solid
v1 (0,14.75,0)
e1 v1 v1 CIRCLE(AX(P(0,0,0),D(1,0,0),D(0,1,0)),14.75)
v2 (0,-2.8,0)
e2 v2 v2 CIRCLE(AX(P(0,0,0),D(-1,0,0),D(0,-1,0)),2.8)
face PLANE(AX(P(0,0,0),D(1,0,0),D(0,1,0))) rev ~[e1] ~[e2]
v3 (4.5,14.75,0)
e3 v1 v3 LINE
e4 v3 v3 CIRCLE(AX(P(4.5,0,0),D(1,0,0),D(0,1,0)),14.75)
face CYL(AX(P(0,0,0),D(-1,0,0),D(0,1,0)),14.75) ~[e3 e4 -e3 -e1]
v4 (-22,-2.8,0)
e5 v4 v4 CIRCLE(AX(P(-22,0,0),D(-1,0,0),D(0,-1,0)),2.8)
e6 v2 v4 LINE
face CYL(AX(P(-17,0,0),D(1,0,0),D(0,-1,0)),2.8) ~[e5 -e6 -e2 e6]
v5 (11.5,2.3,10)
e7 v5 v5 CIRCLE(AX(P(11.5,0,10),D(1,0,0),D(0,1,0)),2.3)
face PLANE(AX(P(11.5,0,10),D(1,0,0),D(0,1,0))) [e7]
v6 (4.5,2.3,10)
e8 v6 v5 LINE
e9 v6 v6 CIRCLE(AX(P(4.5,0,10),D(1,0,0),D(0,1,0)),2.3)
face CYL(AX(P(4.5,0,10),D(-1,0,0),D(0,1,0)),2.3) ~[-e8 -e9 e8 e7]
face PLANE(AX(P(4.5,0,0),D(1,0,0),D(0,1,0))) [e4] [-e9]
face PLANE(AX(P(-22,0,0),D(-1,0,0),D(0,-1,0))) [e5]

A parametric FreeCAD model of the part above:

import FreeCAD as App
import Part
import Sketcher
from FreeCAD import Vector
Q = App.Units.Quantity

doc = App.newDocument("Part")
body = doc.addObject("PartDesign::Body", "Body")

sketch1 = body.newObject("Sketcher::SketchObject", "Sketch")
sketch1.AttachmentSupport = (doc.getObject("YZ_Plane"), [""])
sketch1.MapMode = "FlatFace"
sketch1.addGeometry(Part.Circle(Vector(0, 0, 0), Vector(0, 0, 1), 15), False)
sketch1.addConstraint(Sketcher.Constraint("Coincident", 0, 3, -1, 1))
sketch1.addConstraint(Sketcher.Constraint("Diameter", 0, Q("29.5 mm")))
pad1 = body.newObject("PartDesign::Pad", "Pad")
pad1.Profile = sketch1
pad1.Length = 4.5

sketch2 = body.newObject("Sketcher::SketchObject", "Sketch001")
sketch2.AttachmentSupport = (doc.getObject("YZ_Plane"), [""])
sketch2.MapMode = "FlatFace"
sketch2.addGeometry(Part.Circle(Vector(0, 0, 0), Vector(0, 0, 1), 2.8), False)
sketch2.addConstraint(Sketcher.Constraint("Coincident", 0, 3, -1, 1))
sketch2.addConstraint(Sketcher.Constraint("Diameter", 0, Q("5.6 mm")))
pad2 = body.newObject("PartDesign::Pad", "Pad001")
pad2.Profile = sketch2
pad2.Length = 17
pad2.Reversed = True

sketch3 = body.newObject("Sketcher::SketchObject", "Sketch002")
sketch3.AttachmentSupport = (doc.getObject("YZ_Plane"), [""])
sketch3.MapMode = "FlatFace"
sketch3.AttachmentOffset = App.Placement(Vector(0, 0, 4.5), App.Rotation())
sketch3.addGeometry(Part.Circle(Vector(0, 10, 0), Vector(0, 0, 1), 2.3), False)
sketch3.addConstraint(Sketcher.Constraint("PointOnObject", 0, 3, -2))
sketch3.addConstraint(Sketcher.Constraint("Diameter", 0, Q("4.6 mm")))
sketch3.addConstraint(Sketcher.Constraint("DistanceY", -1, 1, 0, 3, Q("10 mm")))
pad3 = body.newObject("PartDesign::Pad", "Pad002")
pad3.Profile = sketch3
pad3.Length = 7

sketch4 = body.newObject("Sketcher::SketchObject", "Sketch003")
sketch4.AttachmentSupport = (doc.getObject("YZ_Plane"), [""])
sketch4.MapMode = "FlatFace"
sketch4.AttachmentOffset = App.Placement(Vector(0, 0, -17), App.Rotation())
sketch4.addGeometry(Part.Circle(Vector(0, 0, 0), Vector(0, 0, 1), 2.8), False)
sketch4.addConstraint(Sketcher.Constraint("Coincident", 0, 3, -1, 1))
sketch4.addConstraint(Sketcher.Constraint("Diameter", 0, Q("5.6 mm")))
pad4 = body.newObject("PartDesign::Pad", "Pad003")
pad4.Profile = sketch4
pad4.Length = 5
pad4.Reversed = True

doc.recompute()
